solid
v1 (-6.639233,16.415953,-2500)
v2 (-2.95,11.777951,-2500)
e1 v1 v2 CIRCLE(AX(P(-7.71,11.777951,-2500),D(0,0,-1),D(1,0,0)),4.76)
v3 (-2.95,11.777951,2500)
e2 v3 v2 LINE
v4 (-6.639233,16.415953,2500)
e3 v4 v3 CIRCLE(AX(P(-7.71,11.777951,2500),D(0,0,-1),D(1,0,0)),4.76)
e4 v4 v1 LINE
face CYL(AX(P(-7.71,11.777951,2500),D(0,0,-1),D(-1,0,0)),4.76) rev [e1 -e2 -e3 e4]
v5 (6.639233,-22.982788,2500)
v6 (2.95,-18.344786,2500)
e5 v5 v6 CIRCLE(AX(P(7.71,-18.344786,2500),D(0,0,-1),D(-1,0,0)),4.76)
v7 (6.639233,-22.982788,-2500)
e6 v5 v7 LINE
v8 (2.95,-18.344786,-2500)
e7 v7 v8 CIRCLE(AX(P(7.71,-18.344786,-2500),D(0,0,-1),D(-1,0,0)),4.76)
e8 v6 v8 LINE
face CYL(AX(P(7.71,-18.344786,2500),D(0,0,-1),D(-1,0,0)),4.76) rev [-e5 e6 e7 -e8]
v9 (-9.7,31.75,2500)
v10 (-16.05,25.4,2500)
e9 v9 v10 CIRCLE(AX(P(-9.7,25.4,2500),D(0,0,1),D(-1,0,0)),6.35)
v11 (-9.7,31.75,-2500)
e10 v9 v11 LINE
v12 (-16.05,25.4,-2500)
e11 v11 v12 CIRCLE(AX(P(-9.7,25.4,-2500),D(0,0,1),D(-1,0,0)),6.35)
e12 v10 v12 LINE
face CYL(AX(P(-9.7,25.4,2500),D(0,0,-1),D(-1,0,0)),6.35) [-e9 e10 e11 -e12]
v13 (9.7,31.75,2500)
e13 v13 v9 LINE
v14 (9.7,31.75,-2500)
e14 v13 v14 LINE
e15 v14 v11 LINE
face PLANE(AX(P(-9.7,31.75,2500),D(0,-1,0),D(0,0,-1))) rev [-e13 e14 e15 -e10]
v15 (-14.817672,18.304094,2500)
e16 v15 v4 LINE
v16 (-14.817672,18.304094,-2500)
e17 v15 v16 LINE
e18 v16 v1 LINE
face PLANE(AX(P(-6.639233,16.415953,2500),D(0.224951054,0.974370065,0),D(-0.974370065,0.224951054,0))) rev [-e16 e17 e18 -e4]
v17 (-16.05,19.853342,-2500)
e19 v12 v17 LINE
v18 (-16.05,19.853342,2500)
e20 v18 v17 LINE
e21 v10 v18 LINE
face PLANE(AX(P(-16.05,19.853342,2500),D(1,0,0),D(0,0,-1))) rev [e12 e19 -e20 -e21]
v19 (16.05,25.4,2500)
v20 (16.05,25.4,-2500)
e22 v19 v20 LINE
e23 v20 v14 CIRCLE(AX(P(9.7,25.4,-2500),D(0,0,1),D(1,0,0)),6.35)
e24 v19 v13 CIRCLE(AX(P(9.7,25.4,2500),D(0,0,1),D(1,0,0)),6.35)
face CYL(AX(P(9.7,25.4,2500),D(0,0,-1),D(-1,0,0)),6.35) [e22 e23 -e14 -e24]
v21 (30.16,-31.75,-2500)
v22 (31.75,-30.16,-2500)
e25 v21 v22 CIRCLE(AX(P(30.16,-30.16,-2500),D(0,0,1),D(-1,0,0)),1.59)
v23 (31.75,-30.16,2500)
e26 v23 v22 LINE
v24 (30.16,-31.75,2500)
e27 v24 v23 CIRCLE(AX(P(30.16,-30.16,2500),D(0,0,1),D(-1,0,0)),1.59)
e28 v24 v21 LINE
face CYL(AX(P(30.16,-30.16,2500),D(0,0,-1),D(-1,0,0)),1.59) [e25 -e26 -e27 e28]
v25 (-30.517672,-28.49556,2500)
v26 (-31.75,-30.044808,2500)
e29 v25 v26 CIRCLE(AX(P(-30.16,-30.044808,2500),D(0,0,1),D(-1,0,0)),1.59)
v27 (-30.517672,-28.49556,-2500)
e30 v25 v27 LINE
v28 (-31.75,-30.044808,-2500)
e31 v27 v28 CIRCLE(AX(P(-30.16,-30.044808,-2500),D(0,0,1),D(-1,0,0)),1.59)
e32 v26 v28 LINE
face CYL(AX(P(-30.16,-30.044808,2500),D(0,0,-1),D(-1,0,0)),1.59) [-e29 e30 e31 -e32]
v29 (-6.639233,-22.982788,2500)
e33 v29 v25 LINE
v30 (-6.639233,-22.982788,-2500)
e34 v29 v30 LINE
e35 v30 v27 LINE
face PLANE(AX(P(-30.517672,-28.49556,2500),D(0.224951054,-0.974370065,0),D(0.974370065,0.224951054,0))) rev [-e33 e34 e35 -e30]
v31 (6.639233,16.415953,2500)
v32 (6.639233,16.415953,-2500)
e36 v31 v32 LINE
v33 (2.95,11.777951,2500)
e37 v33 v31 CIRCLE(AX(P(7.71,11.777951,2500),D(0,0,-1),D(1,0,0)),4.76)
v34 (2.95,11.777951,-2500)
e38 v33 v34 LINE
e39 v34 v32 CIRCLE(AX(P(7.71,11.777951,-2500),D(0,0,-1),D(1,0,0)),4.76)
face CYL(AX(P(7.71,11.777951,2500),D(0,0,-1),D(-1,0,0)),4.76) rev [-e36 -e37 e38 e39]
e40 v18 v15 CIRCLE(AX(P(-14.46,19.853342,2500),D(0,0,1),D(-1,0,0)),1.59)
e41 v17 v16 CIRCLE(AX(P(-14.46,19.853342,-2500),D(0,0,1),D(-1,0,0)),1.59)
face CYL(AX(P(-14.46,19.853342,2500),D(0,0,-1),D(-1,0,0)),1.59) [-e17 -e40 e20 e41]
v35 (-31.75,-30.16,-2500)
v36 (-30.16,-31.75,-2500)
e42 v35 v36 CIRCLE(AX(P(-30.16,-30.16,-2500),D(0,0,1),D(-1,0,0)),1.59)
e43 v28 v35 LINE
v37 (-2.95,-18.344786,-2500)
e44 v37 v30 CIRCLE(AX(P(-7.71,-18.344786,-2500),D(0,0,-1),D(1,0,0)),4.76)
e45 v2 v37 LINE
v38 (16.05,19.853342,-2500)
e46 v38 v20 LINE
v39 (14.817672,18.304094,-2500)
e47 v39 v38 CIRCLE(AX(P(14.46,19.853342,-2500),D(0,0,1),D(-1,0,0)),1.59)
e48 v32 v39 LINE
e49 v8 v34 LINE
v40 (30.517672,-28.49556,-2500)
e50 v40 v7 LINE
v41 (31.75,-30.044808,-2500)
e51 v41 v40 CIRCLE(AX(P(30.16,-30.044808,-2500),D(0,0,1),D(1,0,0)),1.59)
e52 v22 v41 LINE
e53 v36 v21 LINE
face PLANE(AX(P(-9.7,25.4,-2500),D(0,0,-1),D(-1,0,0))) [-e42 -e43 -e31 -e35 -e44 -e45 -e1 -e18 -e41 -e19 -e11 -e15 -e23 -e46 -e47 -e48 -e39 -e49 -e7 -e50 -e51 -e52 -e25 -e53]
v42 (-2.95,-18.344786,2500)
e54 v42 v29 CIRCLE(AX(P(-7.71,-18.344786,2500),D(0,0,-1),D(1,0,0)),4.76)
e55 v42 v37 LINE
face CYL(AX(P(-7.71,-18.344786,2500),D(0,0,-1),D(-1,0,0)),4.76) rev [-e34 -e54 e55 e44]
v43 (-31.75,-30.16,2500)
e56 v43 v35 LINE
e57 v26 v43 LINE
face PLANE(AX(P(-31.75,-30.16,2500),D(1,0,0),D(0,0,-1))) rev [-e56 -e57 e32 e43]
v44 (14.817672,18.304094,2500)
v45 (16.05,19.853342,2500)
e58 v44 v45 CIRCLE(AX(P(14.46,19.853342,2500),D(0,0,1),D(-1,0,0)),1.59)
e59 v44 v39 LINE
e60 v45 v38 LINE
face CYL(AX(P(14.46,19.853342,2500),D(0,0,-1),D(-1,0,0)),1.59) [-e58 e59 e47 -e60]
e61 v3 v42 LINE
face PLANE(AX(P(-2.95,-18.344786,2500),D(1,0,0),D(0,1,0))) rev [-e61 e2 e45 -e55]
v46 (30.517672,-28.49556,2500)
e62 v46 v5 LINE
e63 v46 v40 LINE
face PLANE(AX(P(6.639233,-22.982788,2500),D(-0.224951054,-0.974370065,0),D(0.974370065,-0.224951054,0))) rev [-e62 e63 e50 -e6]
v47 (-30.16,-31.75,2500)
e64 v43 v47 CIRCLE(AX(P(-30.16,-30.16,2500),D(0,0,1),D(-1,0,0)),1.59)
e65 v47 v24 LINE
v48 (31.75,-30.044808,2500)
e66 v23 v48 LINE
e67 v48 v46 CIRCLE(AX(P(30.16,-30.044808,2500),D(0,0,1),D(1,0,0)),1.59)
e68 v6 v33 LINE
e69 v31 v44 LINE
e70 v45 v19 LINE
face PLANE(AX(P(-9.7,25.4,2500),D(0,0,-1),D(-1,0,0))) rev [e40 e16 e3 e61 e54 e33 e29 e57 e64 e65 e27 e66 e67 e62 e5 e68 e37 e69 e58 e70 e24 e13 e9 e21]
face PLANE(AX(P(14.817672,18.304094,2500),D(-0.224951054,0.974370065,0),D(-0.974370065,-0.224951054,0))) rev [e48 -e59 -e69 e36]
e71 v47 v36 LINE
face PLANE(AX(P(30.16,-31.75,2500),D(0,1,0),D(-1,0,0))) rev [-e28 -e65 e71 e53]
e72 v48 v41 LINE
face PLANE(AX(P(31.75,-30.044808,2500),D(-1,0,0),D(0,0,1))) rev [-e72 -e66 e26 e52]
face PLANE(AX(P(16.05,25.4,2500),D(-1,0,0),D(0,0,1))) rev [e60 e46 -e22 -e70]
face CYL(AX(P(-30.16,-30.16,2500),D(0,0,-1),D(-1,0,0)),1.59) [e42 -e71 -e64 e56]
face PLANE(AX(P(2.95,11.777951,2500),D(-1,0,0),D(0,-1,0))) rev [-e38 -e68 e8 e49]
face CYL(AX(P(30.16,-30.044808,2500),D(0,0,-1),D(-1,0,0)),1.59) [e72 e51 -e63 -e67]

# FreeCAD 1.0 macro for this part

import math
import FreeCAD as App
import Part
import Sketcher

V = App.Vector
Q = App.Units.Quantity

doc = App.newDocument("Part")
body = doc.addObject("PartDesign::Body", "Body")

sketch1 = body.newObject("Sketcher::SketchObject", "Sketch")
sketch1.AttachmentSupport = (doc.getObject("XY_Plane"), [""])
sketch1.MapMode = "FlatFace"
sketch1.addGeometry([
    Part.LineSegment(V(9.7, 31.75, 0), V(-9.7, 31.75, 0)),
    Part.ArcOfCircle(Part.Circle(V(-9.7, 25.4, 0), V(0, 0, 1), 6.35), math.radians(90), math.radians(180)),
    Part.LineSegment(V(-16.05, 25.4, 0), V(-16.05, 19.85, 0)),
    Part.ArcOfCircle(Part.Circle(V(-14.46, 19.85, 0), V(0, 0, 1), 1.59), math.radians(180), math.radians(257)),
    Part.LineSegment(V(-14.82, 18.3, 0), V(-6.64, 16.42, 0)),
    Part.ArcOfCircle(Part.Circle(V(-7.71, 11.78, 0), V(0, 0, 1), 4.76), math.radians(0), math.radians(77)),
    Part.LineSegment(V(-2.95, 11.78, 0), V(-2.95, -18.34, 0)),
    Part.ArcOfCircle(Part.Circle(V(-7.71, -18.34, 0), V(0, 0, 1), 4.76), math.radians(-77), math.radians(0)),
    Part.LineSegment(V(-6.64, -22.98, 0), V(-30.52, -28.5, 0)),
    Part.ArcOfCircle(Part.Circle(V(-30.16, -30.04, 0), V(0, 0, 1), 1.59), math.radians(103), math.radians(180)),
    Part.LineSegment(V(-31.75, -30.04, 0), V(-31.75, -30.16, 0)),
    Part.ArcOfCircle(Part.Circle(V(-30.16, -30.16, 0), V(0, 0, 1), 1.59), math.radians(180), math.radians(270)),
    Part.LineSegment(V(-30.16, -31.75, 0), V(30.16, -31.75, 0)),
    Part.ArcOfCircle(Part.Circle(V(30.16, -30.16, 0), V(0, 0, 1), 1.59), math.radians(-90), math.radians(0)),
    Part.LineSegment(V(31.75, -30.16, 0), V(31.75, -30.04, 0)),
    Part.ArcOfCircle(Part.Circle(V(30.16, -30.04, 0), V(0, 0, 1), 1.59), math.radians(0), math.radians(77)),
    Part.LineSegment(V(30.52, -28.5, 0), V(6.64, -22.98, 0)),
    Part.ArcOfCircle(Part.Circle(V(7.71, -18.34, 0), V(0, 0, 1), 4.76), math.radians(180), math.radians(257)),
    Part.LineSegment(V(2.95, -18.34, 0), V(2.95, 11.78, 0)),
    Part.ArcOfCircle(Part.Circle(V(7.71, 11.78, 0), V(0, 0, 1), 4.76), math.radians(103), math.radians(180)),
    Part.LineSegment(V(6.64, 16.42, 0), V(14.82, 18.3, 0)),
    Part.ArcOfCircle(Part.Circle(V(14.46, 19.85, 0), V(0, 0, 1), 1.59), math.radians(-77), math.radians(0)),
    Part.LineSegment(V(16.05, 19.85, 0), V(16.05, 25.4, 0)),
    Part.ArcOfCircle(Part.Circle(V(9.7, 25.4, 0), V(0, 0, 1), 6.35), math.radians(0), math.radians(90)),
], False)
sketch1.addConstraint([
    Sketcher.Constraint("Tangent", 0, 2, 1, 1),
    Sketcher.Constraint("Tangent", 1, 2, 2, 1),
    Sketcher.Constraint("Tangent", 2, 2, 3, 1),
    Sketcher.Constraint("Tangent", 3, 2, 4, 1),
    Sketcher.Constraint("Tangent", 4, 2, 5, 2),
    Sketcher.Constraint("Tangent", 5, 1, 6, 1),
    Sketcher.Constraint("Tangent", 6, 2, 7, 2),
    Sketcher.Constraint("Tangent", 7, 1, 8, 1),
    Sketcher.Constraint("Tangent", 8, 2, 9, 1),
    Sketcher.Constraint("Tangent", 9, 2, 10, 1),
    Sketcher.Constraint("Tangent", 10, 2, 11, 1),
    Sketcher.Constraint("Tangent", 11, 2, 12, 1),
    Sketcher.Constraint("Tangent", 12, 2, 13, 1),
    Sketcher.Constraint("Tangent", 13, 2, 14, 1),
    Sketcher.Constraint("Tangent", 14, 2, 15, 1),
    Sketcher.Constraint("Tangent", 15, 2, 16, 1),
    Sketcher.Constraint("Tangent", 16, 2, 17, 2),
    Sketcher.Constraint("Tangent", 17, 1, 18, 1),
    Sketcher.Constraint("Tangent", 18, 2, 19, 2),
    Sketcher.Constraint("Tangent", 19, 1, 20, 1),
    Sketcher.Constraint("Tangent", 20, 2, 21, 1),
    Sketcher.Constraint("Tangent", 21, 2, 22, 1),
    Sketcher.Constraint("Tangent", 22, 2, 23, 1),
    Sketcher.Constraint("Tangent", 23, 2, 0, 1),
    Sketcher.Constraint("Horizontal", 0),
    Sketcher.Constraint("Vertical", 2),
    Sketcher.Constraint("Vertical", 6),
    Sketcher.Constraint("Vertical", 10),
    Sketcher.Constraint("Horizontal", 12),
    Sketcher.Constraint("Vertical", 14),
    Sketcher.Constraint("Vertical", 18),
    Sketcher.Constraint("Vertical", 22),
    Sketcher.Constraint("Equal", 5, 7),
    Sketcher.Constraint("Equal", 3, 9),
    Sketcher.Constraint("Equal", 9, 11),
    Sketcher.Constraint("Equal", 11, 13),
    Sketcher.Constraint("Equal", 13, 15),
    Sketcher.Constraint("Equal", 7, 17),
    Sketcher.Constraint("Equal", 17, 19),
    Sketcher.Constraint("Equal", 15, 21),
    Sketcher.Constraint("Equal", 1, 23),
    Sketcher.Constraint("Symmetric", 9, 3, 15, 3, -2),
    Sketcher.Constraint("Symmetric", 7, 3, 17, 3, -2),
    Sketcher.Constraint("Symmetric", 3, 3, 21, 3, -2),
    Sketcher.Constraint("Parallel", 4, 16),
    Sketcher.Constraint("Parallel", 8, 20),
    Sketcher.Constraint("Angle", 4, Q("-13 deg")),
    Sketcher.Constraint("Radius", 1, Q("6.35 mm")),
    Sketcher.Constraint("Radius", 3, Q("1.59 mm")),
    Sketcher.Constraint("Radius", 5, Q("4.76 mm")),
    Sketcher.Constraint("DistanceX", 0, 2, 0, 1, Q("19.4 mm")),
    Sketcher.Constraint("DistanceX", 12, 1, 12, 2, Q("60.32 mm")),
    Sketcher.Constraint("DistanceY", -1, 1, 1, 3, Q("25.4 mm")),
    Sketcher.Constraint("DistanceX", 6, 2, 13, 2, Q("34.7 mm")),
    Sketcher.Constraint("DistanceY", 11, 3, -1, 1, Q("30.16 mm")),
    Sketcher.Constraint("DistanceY", 10, 2, 10, 1, Q("0.115192 mm")),
    Sketcher.Constraint("DistanceY", 2, 2, 2, 1, Q("5.546658 mm")),
])
pad1 = body.newObject("PartDesign::Pad", "Pad")
pad1.Profile = sketch1
pad1.Length = 5000
pad1.Midplane = True

doc.recompute()
